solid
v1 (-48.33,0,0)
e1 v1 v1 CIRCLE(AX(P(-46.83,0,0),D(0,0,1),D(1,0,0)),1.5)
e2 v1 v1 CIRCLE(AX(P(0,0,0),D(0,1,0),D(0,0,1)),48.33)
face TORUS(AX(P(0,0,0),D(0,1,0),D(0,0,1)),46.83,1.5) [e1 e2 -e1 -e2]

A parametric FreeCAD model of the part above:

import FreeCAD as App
import Part
import Sketcher
from FreeCAD import Vector
Q = App.Units.Quantity

doc = App.newDocument("Part")
body = doc.addObject("PartDesign::Body", "Body")

# Sketch on XY plane
sketch1 = body.newObject("Sketcher::SketchObject", "Sketch")
sketch1.AttachmentSupport = (doc.getObject("XY_Plane"), [""])
sketch1.MapMode = "FlatFace"
sketch1.addGeometry(Part.Circle(Vector(-46.8, 0, 0), Vector(0, 0, 1), 1.5), False)
sketch1.addConstraint([
    Sketcher.Constraint("PointOnObject", 0, 3, -1),
    Sketcher.Constraint("Diameter", 0, Q("3 mm")),
    Sketcher.Constraint("DistanceX", 0, 3, -1, 1, Q("46.83 mm")),
])

# Sketch on XZ plane
sketch2 = body.newObject("Sketcher::SketchObject", "Sketch001")
sketch2.AttachmentSupport = (doc.getObject("XZ_Plane"), [""])
sketch2.MapMode = "FlatFace"
sketch2.addGeometry(Part.Circle(Vector(0, 0, 0), Vector(0, 0, 1), 47), False)
sketch2.addConstraint([
    Sketcher.Constraint("Coincident", 0, 3, -1, 1),
    Sketcher.Constraint("Diameter", 0, Q("93.66 mm")),
])
doc.recompute()

additivepipe = body.newObject("PartDesign::AdditivePipe", "AdditivePipe")
additivepipe.Profile = sketch1
additivepipe.Spine = (sketch2, ["Edge1"])

doc.recompute()
